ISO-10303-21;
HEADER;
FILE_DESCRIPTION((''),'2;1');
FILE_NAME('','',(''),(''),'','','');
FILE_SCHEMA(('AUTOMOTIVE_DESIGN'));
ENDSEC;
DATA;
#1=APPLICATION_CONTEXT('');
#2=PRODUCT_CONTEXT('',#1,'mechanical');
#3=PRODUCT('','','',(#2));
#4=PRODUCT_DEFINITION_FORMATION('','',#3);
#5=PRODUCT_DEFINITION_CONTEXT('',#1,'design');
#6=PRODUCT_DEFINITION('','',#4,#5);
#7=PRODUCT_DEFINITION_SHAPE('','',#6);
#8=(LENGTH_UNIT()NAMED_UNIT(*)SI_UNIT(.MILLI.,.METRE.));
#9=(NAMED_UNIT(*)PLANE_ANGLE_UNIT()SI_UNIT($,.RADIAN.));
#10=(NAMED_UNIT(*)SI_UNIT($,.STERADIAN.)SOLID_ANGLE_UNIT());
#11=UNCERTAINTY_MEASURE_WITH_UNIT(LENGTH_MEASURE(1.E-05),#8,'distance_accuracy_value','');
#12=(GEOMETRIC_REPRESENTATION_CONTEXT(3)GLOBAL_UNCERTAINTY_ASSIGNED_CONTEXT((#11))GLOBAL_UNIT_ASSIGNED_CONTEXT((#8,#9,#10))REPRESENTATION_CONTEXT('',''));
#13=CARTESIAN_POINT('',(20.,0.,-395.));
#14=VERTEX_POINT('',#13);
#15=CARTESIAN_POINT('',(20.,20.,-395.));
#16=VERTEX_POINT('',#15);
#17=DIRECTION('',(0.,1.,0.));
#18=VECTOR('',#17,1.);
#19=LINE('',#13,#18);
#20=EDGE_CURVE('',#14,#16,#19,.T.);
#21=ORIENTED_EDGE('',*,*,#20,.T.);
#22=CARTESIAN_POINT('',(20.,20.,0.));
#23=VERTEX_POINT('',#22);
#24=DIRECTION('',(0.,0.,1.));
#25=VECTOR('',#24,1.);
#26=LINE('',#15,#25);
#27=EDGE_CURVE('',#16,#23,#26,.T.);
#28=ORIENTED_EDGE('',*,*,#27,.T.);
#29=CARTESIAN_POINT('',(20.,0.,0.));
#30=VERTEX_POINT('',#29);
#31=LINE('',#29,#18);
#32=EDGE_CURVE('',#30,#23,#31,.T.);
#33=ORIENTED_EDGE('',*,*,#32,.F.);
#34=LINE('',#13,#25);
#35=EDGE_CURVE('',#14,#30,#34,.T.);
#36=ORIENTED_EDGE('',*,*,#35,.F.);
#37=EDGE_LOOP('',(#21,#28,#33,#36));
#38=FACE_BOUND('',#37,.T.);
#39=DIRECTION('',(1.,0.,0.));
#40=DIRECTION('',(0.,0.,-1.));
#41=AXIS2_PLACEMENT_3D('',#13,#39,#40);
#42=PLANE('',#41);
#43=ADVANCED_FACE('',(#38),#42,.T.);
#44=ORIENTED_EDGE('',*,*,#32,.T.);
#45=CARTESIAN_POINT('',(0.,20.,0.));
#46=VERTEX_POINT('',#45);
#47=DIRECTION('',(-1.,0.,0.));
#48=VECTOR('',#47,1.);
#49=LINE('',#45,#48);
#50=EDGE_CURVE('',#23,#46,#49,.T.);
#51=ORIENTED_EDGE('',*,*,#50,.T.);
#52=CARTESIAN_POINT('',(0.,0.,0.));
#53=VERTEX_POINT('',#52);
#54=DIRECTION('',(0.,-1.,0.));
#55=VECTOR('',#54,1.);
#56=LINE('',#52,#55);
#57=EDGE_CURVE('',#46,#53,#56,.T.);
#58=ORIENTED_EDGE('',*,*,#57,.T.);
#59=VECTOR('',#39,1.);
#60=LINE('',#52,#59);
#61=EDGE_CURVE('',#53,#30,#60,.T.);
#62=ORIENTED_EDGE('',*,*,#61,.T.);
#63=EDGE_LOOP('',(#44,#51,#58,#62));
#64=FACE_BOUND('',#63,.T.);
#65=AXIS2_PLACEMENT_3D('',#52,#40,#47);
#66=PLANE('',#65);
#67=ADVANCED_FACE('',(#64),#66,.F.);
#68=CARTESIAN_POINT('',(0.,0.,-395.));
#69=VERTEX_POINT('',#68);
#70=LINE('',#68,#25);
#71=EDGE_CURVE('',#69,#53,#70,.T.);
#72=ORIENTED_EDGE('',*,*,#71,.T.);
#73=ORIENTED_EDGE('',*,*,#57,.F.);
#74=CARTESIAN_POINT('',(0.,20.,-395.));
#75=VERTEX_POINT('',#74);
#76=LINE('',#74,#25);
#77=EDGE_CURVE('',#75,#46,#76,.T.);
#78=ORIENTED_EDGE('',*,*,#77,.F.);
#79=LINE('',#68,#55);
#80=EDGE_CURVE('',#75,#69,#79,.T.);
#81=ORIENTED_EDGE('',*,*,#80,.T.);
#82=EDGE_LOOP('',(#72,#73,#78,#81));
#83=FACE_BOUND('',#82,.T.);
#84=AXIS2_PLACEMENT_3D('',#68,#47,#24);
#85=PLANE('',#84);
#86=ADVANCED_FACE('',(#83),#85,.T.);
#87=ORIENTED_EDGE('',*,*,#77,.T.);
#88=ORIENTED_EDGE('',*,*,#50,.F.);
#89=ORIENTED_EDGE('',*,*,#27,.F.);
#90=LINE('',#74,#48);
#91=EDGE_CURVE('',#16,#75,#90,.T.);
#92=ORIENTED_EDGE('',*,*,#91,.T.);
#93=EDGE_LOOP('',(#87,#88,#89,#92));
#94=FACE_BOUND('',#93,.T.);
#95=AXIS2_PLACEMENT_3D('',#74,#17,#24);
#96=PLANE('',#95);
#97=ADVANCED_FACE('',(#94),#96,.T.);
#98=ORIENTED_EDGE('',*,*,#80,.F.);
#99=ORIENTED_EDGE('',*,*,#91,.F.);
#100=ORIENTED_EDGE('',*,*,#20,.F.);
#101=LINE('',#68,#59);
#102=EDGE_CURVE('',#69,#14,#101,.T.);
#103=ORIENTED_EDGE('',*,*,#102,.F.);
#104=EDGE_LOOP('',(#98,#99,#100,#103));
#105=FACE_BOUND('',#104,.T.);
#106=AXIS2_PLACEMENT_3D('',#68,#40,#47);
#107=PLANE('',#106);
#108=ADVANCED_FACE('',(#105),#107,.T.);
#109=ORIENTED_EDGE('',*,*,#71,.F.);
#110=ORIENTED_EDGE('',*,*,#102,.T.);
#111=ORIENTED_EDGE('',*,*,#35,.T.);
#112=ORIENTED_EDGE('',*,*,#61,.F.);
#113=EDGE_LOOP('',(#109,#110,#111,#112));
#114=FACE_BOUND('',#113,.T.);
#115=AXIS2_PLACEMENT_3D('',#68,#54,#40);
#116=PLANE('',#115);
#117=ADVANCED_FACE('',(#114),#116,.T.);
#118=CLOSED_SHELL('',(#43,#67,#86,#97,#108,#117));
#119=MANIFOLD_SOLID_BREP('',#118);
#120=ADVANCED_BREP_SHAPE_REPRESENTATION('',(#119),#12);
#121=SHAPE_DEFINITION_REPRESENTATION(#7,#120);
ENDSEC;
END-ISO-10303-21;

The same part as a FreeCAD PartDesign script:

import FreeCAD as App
import Part
import Sketcher
from FreeCAD import Vector


def add_polygon(sketch, points):
    """Adds a closed chain of lines whose ends are joined by coincident constraints."""
    first, n = sketch.GeometryCount, len(points)
    for a, b in zip(points, points[1:] + points[:1]):
        sketch.addGeometry(Part.LineSegment(App.Vector(*a, 0), App.Vector(*b, 0)), False)
    for i in range(n):
        sketch.addConstraint(Sketcher.Constraint("Coincident", first + i, 2, first + (i + 1) % n, 1))

doc = App.newDocument("Part")
body = doc.addObject("PartDesign::Body", "Body")

# Sketch on XY plane
sketch1 = body.newObject("Sketcher::SketchObject", "Sketch")
sketch1.AttachmentSupport = (doc.getObject("XY_Plane"), [""])
sketch1.MapMode = "FlatFace"
add_polygon(sketch1, [(0, 20), (0, 0), (20, 0), (20, 20)])  # lines 0-3
sketch1.addConstraint([
    Sketcher.Constraint("Vertical", 0),
    Sketcher.Constraint("Horizontal", 1),
    Sketcher.Constraint("Vertical", 2),
    Sketcher.Constraint("Horizontal", 3),
    Sketcher.Constraint("Coincident", 0, 2, -1, 1),
    Sketcher.Constraint("Equal", 3, 0),
    Sketcher.Constraint("DistanceX", 1, 1, 1, 2, 20.0),
])
pad1 = body.newObject("PartDesign::Pad", "Pad")
pad1.Profile = sketch1
pad1.Length = 395
pad1.Reversed = True

doc.recompute()
